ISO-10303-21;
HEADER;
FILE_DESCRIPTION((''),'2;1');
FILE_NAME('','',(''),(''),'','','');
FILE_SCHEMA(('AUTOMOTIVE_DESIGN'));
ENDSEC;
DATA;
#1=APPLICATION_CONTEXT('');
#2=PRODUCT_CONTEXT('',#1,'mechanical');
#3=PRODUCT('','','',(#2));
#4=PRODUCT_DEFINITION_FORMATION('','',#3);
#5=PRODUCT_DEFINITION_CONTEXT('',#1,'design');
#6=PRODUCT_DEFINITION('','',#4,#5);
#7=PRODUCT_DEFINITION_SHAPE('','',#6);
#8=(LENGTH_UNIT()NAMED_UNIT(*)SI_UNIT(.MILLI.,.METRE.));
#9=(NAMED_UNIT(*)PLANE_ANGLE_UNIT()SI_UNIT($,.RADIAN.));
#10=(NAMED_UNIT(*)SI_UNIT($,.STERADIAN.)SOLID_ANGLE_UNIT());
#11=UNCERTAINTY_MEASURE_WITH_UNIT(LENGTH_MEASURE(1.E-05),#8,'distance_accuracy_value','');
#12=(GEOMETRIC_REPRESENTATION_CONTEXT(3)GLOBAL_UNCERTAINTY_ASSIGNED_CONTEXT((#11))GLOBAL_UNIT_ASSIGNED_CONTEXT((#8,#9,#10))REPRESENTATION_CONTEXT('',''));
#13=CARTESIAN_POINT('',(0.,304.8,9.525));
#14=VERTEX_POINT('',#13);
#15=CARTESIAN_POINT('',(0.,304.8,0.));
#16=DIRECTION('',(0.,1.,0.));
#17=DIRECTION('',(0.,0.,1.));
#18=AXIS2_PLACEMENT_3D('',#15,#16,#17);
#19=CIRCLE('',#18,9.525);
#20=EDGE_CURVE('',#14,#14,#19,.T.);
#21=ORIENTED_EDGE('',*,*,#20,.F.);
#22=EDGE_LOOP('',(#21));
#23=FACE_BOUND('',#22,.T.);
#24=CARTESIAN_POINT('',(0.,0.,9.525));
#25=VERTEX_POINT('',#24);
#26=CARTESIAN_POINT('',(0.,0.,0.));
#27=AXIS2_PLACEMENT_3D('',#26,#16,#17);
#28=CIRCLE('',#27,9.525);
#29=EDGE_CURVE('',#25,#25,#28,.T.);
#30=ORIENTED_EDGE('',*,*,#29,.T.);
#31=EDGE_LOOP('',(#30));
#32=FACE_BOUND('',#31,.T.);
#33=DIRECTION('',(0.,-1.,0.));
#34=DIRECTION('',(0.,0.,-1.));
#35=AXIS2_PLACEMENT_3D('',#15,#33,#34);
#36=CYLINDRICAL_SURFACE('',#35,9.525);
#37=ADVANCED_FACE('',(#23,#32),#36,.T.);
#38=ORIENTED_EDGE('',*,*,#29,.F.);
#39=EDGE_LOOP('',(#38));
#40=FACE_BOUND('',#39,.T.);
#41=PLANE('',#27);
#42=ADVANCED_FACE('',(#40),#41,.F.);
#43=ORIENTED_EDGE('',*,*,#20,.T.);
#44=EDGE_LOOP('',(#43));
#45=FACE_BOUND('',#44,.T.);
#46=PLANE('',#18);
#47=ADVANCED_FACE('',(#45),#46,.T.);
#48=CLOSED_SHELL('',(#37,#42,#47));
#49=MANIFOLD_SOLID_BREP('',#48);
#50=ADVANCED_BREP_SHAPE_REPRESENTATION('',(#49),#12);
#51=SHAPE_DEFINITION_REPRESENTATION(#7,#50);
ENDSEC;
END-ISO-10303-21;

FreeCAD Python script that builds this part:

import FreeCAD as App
import Part
import Sketcher

V = App.Vector
Q = App.Units.Quantity

doc = App.newDocument("Part")
body = doc.addObject("PartDesign::Body", "Body")

# Sketch on XZ plane
sketch1 = body.newObject("Sketcher::SketchObject", "Sketch")
sketch1.AttachmentSupport = (doc.getObject("XZ_Plane"), [""])
sketch1.MapMode = "FlatFace"
sketch1.addGeometry(Part.Circle(V(0, 0, 0), V(0, 0, 1), 10), False)
sketch1.addConstraint([
    Sketcher.Constraint("Coincident", 0, 3, -1, 1),
    Sketcher.Constraint("Diameter", 0, Q("0.75 in")),
])
pad1 = body.newObject("PartDesign::Pad", "Pad")
pad1.Profile = sketch1
pad1.Length = Q("12 in")
pad1.Reversed = True

doc.recompute()
